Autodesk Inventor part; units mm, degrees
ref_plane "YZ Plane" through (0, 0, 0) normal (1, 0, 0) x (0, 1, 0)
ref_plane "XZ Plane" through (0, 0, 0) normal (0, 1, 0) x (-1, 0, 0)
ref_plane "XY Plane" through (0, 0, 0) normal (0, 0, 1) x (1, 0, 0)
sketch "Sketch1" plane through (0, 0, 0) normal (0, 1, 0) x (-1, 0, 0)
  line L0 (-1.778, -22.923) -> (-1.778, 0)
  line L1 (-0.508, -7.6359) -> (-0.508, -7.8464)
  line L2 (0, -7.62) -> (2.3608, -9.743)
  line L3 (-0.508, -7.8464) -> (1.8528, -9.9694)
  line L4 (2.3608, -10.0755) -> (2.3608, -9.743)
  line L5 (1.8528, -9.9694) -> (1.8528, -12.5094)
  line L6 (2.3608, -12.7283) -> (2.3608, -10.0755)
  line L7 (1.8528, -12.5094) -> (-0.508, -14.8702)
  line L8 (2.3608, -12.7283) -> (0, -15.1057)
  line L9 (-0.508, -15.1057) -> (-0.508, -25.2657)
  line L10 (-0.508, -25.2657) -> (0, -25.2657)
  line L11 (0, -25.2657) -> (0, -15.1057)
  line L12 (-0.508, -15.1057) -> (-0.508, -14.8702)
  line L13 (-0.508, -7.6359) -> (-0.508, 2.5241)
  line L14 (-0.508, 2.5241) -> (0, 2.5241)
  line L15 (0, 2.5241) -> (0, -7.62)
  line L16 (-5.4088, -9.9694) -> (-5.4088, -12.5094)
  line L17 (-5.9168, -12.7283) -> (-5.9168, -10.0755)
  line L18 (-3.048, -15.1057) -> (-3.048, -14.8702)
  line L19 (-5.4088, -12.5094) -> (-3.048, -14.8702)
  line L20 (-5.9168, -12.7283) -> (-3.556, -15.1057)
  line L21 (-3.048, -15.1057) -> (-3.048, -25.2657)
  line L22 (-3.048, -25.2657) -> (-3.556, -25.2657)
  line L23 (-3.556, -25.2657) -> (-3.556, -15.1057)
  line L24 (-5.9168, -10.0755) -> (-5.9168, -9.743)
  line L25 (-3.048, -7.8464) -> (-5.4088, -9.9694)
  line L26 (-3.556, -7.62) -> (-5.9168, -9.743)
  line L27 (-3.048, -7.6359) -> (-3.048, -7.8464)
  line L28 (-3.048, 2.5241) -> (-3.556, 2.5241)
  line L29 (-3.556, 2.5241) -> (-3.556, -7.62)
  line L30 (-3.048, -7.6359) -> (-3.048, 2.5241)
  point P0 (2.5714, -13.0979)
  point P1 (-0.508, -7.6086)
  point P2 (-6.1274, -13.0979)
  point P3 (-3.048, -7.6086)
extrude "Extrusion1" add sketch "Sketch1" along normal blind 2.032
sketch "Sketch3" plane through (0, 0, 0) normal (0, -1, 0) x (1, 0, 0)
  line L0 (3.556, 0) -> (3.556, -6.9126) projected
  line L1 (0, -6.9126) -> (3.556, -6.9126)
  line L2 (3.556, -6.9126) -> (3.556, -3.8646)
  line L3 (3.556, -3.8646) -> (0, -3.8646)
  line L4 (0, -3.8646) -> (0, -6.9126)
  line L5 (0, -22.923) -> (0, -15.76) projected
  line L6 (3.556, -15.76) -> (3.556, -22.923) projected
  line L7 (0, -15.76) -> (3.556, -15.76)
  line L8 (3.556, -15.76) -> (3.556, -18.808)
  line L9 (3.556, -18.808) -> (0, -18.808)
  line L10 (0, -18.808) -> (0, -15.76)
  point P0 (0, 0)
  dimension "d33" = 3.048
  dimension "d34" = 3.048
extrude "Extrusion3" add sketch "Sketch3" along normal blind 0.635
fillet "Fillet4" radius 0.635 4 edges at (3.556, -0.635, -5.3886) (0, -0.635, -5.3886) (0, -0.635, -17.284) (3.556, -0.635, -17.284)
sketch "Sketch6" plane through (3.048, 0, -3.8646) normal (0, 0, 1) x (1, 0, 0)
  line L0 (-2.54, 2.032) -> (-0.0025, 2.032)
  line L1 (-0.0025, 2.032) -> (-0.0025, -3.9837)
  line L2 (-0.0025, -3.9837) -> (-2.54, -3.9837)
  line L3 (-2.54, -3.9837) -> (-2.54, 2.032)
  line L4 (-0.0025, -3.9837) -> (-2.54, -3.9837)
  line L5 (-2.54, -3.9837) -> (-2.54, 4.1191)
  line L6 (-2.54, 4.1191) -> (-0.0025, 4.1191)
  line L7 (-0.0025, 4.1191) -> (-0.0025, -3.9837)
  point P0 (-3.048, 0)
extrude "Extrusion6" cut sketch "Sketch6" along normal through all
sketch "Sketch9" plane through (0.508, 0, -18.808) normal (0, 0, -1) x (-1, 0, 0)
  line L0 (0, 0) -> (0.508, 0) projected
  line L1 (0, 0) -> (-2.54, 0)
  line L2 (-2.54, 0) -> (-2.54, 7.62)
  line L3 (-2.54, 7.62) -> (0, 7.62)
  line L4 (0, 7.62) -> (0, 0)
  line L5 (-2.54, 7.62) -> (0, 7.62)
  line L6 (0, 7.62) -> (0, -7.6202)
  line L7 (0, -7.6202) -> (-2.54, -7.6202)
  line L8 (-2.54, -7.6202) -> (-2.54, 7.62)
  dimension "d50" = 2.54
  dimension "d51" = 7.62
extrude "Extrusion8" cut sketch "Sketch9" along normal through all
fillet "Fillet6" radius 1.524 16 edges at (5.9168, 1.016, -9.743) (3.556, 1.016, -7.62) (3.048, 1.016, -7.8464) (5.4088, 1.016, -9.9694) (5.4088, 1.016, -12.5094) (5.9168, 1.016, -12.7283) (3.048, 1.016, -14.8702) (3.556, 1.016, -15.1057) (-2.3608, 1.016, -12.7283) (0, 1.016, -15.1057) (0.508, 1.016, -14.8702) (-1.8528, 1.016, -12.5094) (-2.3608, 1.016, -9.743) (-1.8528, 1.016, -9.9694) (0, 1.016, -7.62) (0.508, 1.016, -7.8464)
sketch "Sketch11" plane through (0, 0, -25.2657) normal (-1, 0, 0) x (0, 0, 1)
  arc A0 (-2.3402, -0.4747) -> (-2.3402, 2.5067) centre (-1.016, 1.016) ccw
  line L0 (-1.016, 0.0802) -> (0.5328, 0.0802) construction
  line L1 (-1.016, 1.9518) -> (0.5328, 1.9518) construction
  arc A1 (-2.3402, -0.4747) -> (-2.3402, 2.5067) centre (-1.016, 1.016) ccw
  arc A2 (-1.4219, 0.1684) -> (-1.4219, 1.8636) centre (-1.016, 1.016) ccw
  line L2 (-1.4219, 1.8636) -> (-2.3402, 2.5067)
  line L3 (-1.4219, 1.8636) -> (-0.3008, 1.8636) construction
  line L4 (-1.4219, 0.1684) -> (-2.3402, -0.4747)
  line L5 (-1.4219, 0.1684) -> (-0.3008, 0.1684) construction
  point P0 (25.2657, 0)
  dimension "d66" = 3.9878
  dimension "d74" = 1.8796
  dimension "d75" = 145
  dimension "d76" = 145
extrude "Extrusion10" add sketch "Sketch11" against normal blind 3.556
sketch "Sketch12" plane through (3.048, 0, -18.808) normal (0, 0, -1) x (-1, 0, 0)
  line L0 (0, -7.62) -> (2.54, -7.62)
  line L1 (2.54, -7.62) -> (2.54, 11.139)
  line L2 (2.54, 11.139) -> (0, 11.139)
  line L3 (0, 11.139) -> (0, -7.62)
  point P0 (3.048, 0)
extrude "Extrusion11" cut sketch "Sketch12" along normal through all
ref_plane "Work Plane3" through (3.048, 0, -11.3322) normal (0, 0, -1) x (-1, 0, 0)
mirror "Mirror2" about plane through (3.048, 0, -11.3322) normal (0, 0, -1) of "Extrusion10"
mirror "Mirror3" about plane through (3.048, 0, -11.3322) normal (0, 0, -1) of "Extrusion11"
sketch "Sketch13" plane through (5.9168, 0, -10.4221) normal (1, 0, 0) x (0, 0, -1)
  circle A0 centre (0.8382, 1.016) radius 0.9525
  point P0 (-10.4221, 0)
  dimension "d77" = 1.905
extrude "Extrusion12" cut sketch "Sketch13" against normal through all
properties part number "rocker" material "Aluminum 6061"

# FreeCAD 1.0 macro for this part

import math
import FreeCAD as App
import Part
import Sketcher
from FreeCAD import Vector
Q = App.Units.Quantity


def edges_at(feature, points):
    """Names of the edges that pass closest to the given points."""
    edges = feature.Shape.Edges
    near = lambda p: min(range(len(edges)), key=lambda i: edges[i].distToShape(Part.Vertex(*p))[0])
    return sorted({f"Edge{near(p) + 1}" for p in points})


def add_polygon(sketch, points):
    """Adds a closed chain of lines whose ends are joined by coincident constraints."""
    first, n = sketch.GeometryCount, len(points)
    for a, b in zip(points, points[1:] + points[:1]):
        sketch.addGeometry(Part.LineSegment(App.Vector(*a, 0), App.Vector(*b, 0)), False)
    for i in range(n):
        sketch.addConstraint(Sketcher.Constraint("Coincident", first + i, 2, first + (i + 1) % n, 1))

doc = App.newDocument("Part")
body = doc.addObject("PartDesign::Body", "Body")
body.AllowCompound = True

# Sketch on XZ plane
sketch1 = body.newObject("Sketcher::SketchObject", "Sketch")
sketch1.AttachmentSupport = (doc.getObject("XZ_Plane"), [""])
sketch1.MapMode = "FlatFace"
add_polygon(sketch1, [(0.508, 2.5241), (0.508, -7.8464), (-1.8528, -9.9694), (-1.8528, -12.5094), (0.508, -14.8702), (0.508, -25.2657), (0, -25.2657), (0, -15.1057), (-2.3608, -12.7283), (-2.3608, -9.743), (0, -7.62), (0, 2.5241)])  # lines 0-11
add_polygon(sketch1, [(5.4088, -12.5094), (5.4088, -9.9694), (3.048, -7.8464), (3.048, 2.5241), (3.556, 2.5241), (3.556, -7.62), (5.9168, -9.743), (5.9168, -12.7283), (3.556, -15.1057), (3.556, -25.2657), (3.048, -25.2657), (3.048, -14.8702)])  # lines 12-23
sketch1.addConstraint(Sketcher.Constraint("Vertical", 0))
sketch1.addConstraint(Sketcher.Constraint("Vertical", 2))
sketch1.addConstraint(Sketcher.Constraint("Vertical", 4))
sketch1.addConstraint(Sketcher.Constraint("Horizontal", 5))
sketch1.addConstraint(Sketcher.Constraint("Vertical", 6))
sketch1.addConstraint(Sketcher.Constraint("Vertical", 8))
sketch1.addConstraint(Sketcher.Constraint("Vertical", 10))
sketch1.addConstraint(Sketcher.Constraint("Horizontal", 11))
sketch1.addConstraint(Sketcher.Constraint("Vertical", 12))
sketch1.addConstraint(Sketcher.Constraint("Vertical", 14))
sketch1.addConstraint(Sketcher.Constraint("Horizontal", 15))
sketch1.addConstraint(Sketcher.Constraint("Vertical", 16))
sketch1.addConstraint(Sketcher.Constraint("Vertical", 18))
sketch1.addConstraint(Sketcher.Constraint("Vertical", 20))
sketch1.addConstraint(Sketcher.Constraint("Horizontal", 21))
sketch1.addConstraint(Sketcher.Constraint("Vertical", 22))
sketch1.addConstraint(Sketcher.Constraint("PointOnObject", 5, 2, -2))
sketch1.addConstraint(Sketcher.Constraint("PointOnObject", 9, 2, -2))
sketch1.addConstraint(Sketcher.Constraint("Parallel", 1, 9))
sketch1.addConstraint(Sketcher.Constraint("Parallel", 13, 17))
sketch1.addConstraint(Sketcher.Constraint("Perpendicular", 3, 23))
sketch1.addConstraint(Sketcher.Constraint("Horizontal", 1, 2, 12, 2))
sketch1.addConstraint(Sketcher.Constraint("Horizontal", 0, 2, 13, 2))
sketch1.addConstraint(Sketcher.Constraint("Horizontal", 11, 2, 14, 2))
sketch1.addConstraint(Sketcher.Constraint("Horizontal", 9, 2, 16, 2))
sketch1.addConstraint(Sketcher.Constraint("Horizontal", 8, 2, 17, 2))
sketch1.addConstraint(Sketcher.Constraint("Horizontal", 7, 2, 18, 2))
sketch1.addConstraint(Sketcher.Constraint("Horizontal", 6, 2, 19, 2))
sketch1.addConstraint(Sketcher.Constraint("Horizontal", 5, 2, 20, 2))
sketch1.addConstraint(Sketcher.Constraint("Horizontal", 3, 2, 22, 2))
sketch1.addConstraint(Sketcher.Constraint("Horizontal", 2, 2, 23, 2))
sketch1.addConstraint(Sketcher.Constraint("Vertical", 0, 2, 3, 2))
sketch1.addConstraint(Sketcher.Constraint("Vertical", 16, 2, 19, 2))
sketch1.addConstraint(Sketcher.Constraint("Vertical", 14, 2, 21, 2))
sketch1.addConstraint(Sketcher.Constraint("Equal", 11, 15))
sketch1.addConstraint(Sketcher.Constraint("Equal", 1, 9))
sketch1.addConstraint(Sketcher.Constraint("Equal", 9, 13))
sketch1.addConstraint(Sketcher.Constraint("DistanceY", 2, 2, 2, 1, Q("0.1 in")))
sketch1.addConstraint(Sketcher.Constraint("DistanceY", 6, 1, 6, 2, Q("0.4 in")))
sketch1.addConstraint(Sketcher.Constraint("DistanceX", 5, 2, 5, 1, Q("0.02 in")))
sketch1.addConstraint(Sketcher.Constraint("DistanceY", 9, 2, -1, 1, Q("0.3 in")))
sketch1.addConstraint(Sketcher.Constraint("Angle", 7, Q("134.7993 deg")))
sketch1.addConstraint(Sketcher.Constraint("DistanceX", 0, 2, 13, 2, Q("0.1 in")))
sketch1.addConstraint(Sketcher.Constraint("Distance", 1, Q("0.125 in")))
sketch1.addConstraint(Sketcher.Constraint("Distance", 7, Q("0.1319 in")))
sketch1.addConstraint(Sketcher.Constraint("DistanceY", 0, 2, 0, 1, Q("10.3705 mm")))
sketch1.addConstraint(Sketcher.Constraint("DistanceY", 4, 2, 4, 1, Q("10.3955 mm")))
sketch1.addConstraint(Sketcher.Constraint("DistanceY", 8, 1, 8, 2, Q("2.9853 mm")))
pad1 = body.newObject("PartDesign::Pad", "Pad")
pad1.Profile = sketch1
pad1.Length = Q("0.08 in")
pad1.Reversed = True

# Sketch on XZ plane
sketch2 = body.newObject("Sketcher::SketchObject", "Sketch001")
sketch2.AttachmentSupport = (doc.getObject("XZ_Plane"), [""])
sketch2.MapMode = "FlatFace"
add_polygon(sketch2, [(3.556, -6.9126), (3.556, -3.8646), (0, -3.8646), (0, -6.9126)])  # lines 0-3
add_polygon(sketch2, [(0, -15.76), (0, -18.808), (3.556, -18.808), (3.556, -15.76)])  # lines 4-7
sketch2.addConstraint(Sketcher.Constraint("Vertical", 0))
sketch2.addConstraint(Sketcher.Constraint("Horizontal", 1))
sketch2.addConstraint(Sketcher.Constraint("Vertical", 2))
sketch2.addConstraint(Sketcher.Constraint("Horizontal", 3))
sketch2.addConstraint(Sketcher.Constraint("Vertical", 4))
sketch2.addConstraint(Sketcher.Constraint("Horizontal", 5))
sketch2.addConstraint(Sketcher.Constraint("Vertical", 6))
sketch2.addConstraint(Sketcher.Constraint("Horizontal", 7))
sketch2.addConstraint(Sketcher.Constraint("PointOnObject", 1, 2, -2))
sketch2.addConstraint(Sketcher.Constraint("PointOnObject", 4, 2, -2))
sketch2.addConstraint(Sketcher.Constraint("Vertical", 3, 2, 5, 2))
sketch2.addConstraint(Sketcher.Constraint("Equal", 2, 4))
sketch2.addConstraint(Sketcher.Constraint("DistanceY", 0, 1, 0, 2, Q("0.12 in")))
sketch2.addConstraint(Sketcher.Constraint("DistanceX", 1, 2, 1, 1, Q("0.14 in")))
sketch2.addConstraint(Sketcher.Constraint("DistanceY", 0, 2, -1, 1, Q("3.8646 mm")))
sketch2.addConstraint(Sketcher.Constraint("DistanceY", 4, 2, -1, 1, Q("18.808 mm")))
pad2 = body.newObject("PartDesign::Pad", "Pad001")
pad2.Profile = sketch2
pad2.Length = Q("0.025 in")
doc.recompute()

fillet = body.newObject("PartDesign::Fillet", "Fillet")
fillet.Base = (pad2, edges_at(pad2, [
    (3.556, -0.635, -5.389),
    (0, -0.635, -5.389),
    (0, -0.635, -17.284),
    (3.556, -0.635, -17.284),
]))
fillet.Radius = Q("0.025 in")

# Sketch on XY plane
sketch3 = body.newObject("Sketcher::SketchObject", "Sketch002")
sketch3.AttachmentSupport = (doc.getObject("XY_Plane"), [""])
sketch3.MapMode = "FlatFace"
sketch3.AttachmentOffset = App.Placement(Vector(0, 0, -3.8646), App.Rotation())
add_polygon(sketch3, [(0.508, 4.1191), (0.508, -3.9837), (3.0455, -3.9837), (3.0455, 4.1191)])  # lines 0-3
sketch3.addConstraint(Sketcher.Constraint("Vertical", 0))
sketch3.addConstraint(Sketcher.Constraint("Horizontal", 1))
sketch3.addConstraint(Sketcher.Constraint("Vertical", 2))
sketch3.addConstraint(Sketcher.Constraint("Horizontal", 3))
sketch3.addConstraint(Sketcher.Constraint("DistanceY", 0, 2, 0, 1, Q("0.319 in")))
sketch3.addConstraint(Sketcher.Constraint("DistanceX", -1, 1, 0, 2, Q("0.02 in")))
sketch3.addConstraint(Sketcher.Constraint("DistanceX", 1, 1, 1, 2, Q("0.0999 in")))
sketch3.addConstraint(Sketcher.Constraint("DistanceY", 0, 2, -1, 1, Q("3.9837 mm")))
pocket1 = body.newObject("PartDesign::Pocket", "Pocket")
pocket1.Profile = sketch3
pocket1.Type = "ThroughAll"
pocket1.Reversed = True

# Sketch on XY plane
sketch4 = body.newObject("Sketcher::SketchObject", "Sketch003")
sketch4.AttachmentSupport = (doc.getObject("XY_Plane"), [""])
sketch4.MapMode = "FlatFace"
sketch4.AttachmentOffset = App.Placement(Vector(0, 0, -18.808), App.Rotation())
add_polygon(sketch4, [(0.508, -7.6202), (0.508, 7.62), (3.048, 7.62), (3.048, -7.6202)])  # lines 0-3
sketch4.addConstraint(Sketcher.Constraint("Vertical", 0))
sketch4.addConstraint(Sketcher.Constraint("Horizontal", 1))
sketch4.addConstraint(Sketcher.Constraint("Vertical", 2))
sketch4.addConstraint(Sketcher.Constraint("Horizontal", 3))
sketch4.addConstraint(Sketcher.Constraint("DistanceX", 1, 1, 1, 2, Q("0.1 in")))
sketch4.addConstraint(Sketcher.Constraint("DistanceY", -1, 1, 0, 2, Q("0.3 in")))
sketch4.addConstraint(Sketcher.Constraint("DistanceY", 2, 2, -1, 1, Q("0.3 in")))
sketch4.addConstraint(Sketcher.Constraint("DistanceX", -1, 1, 0, 2, Q("0.02 in")))
pocket2 = body.newObject("PartDesign::Pocket", "Pocket001")
pocket2.Profile = sketch4
pocket2.Type = "ThroughAll"
doc.recompute()

fillet2 = body.newObject("PartDesign::Fillet", "Fillet001")
fillet2.Base = (pocket2, edges_at(pocket2, [
    (5.917, 1.016, -9.743),
    (3.556, 1.016, -7.62),
    (3.048, 1.016, -7.846),
    (5.409, 1.016, -9.969),
    (5.409, 1.016, -12.509),
    (5.917, 1.016, -12.728),
    (3.048, 1.016, -14.87),
    (3.556, 1.016, -15.106),
    (-2.361, 1.016, -12.728),
    (0, 1.016, -15.106),
    (0.508, 1.016, -14.87),
    (-1.853, 1.016, -12.509),
    (-2.361, 1.016, -9.743),
    (-1.853, 1.016, -9.969),
    (0, 1.016, -7.62),
    (0.508, 1.016, -7.846),
]))
fillet2.Radius = Q("0.06 in")

# Sketch on YZ plane
sketch5 = body.newObject("Sketcher::SketchObject", "Sketch004")
sketch5.AttachmentSupport = (doc.getObject("YZ_Plane"), [""])
sketch5.MapMode = "FlatFace"
sketch5.addGeometry(Part.LineSegment(Vector(0.1684, -26.6876, 0), Vector(-0.4747, -27.6059, 0)), False)
sketch5.addGeometry(Part.ArcOfCircle(Part.Circle(Vector(1.016, -26.2817, 0), Vector(0, 0, 1), 1.993914), math.radians(-41.614926), math.radians(221.614926)), False)
sketch5.addGeometry(Part.LineSegment(Vector(2.5067, -27.6059, 0), Vector(1.8636, -26.6876, 0)), False)
sketch5.addGeometry(Part.ArcOfCircle(Part.Circle(Vector(1.016, -26.2817, 0), Vector(0, 0, 1), 0.939777), math.radians(-25.5889), math.radians(205.5889)), False)
sketch5.addConstraint(Sketcher.Constraint("Coincident", 0, 2, 1, 2))
sketch5.addConstraint(Sketcher.Constraint("Coincident", 1, 1, 2, 1))
sketch5.addConstraint(Sketcher.Constraint("Coincident", 2, 2, 3, 1))
sketch5.addConstraint(Sketcher.Constraint("Coincident", 3, 2, 0, 1))
sketch5.addConstraint(Sketcher.Constraint("Coincident", 3, 3, 1, 3))
sketch5.addConstraint(Sketcher.Constraint("Horizontal", 0, 2, 1, 1))
sketch5.addConstraint(Sketcher.Constraint("Horizontal", 2, 2, 3, 2))
sketch5.addConstraint(Sketcher.Constraint("Radius", 3, Q("0.037 in")))
sketch5.addConstraint(Sketcher.Constraint("Radius", 1, Q("0.0785 in")))
sketch5.addConstraint(Sketcher.Constraint("DistanceX", -1, 1, 1, 3, Q("0.04 in")))
sketch5.addConstraint(Sketcher.Constraint("DistanceX", 0, 2, -1, 1, Q("0.0187 in")))
sketch5.addConstraint(Sketcher.Constraint("DistanceY", 2, 2, -1, 1, Q("1.0507 in")))
sketch5.addConstraint(Sketcher.Constraint("Distance", 0, Q("1.121 mm")))
pad3 = body.newObject("PartDesign::Pad", "Pad002")
pad3.Profile = sketch5
pad3.Length = Q("0.14 in")

# Sketch on XY plane
sketch6 = body.newObject("Sketcher::SketchObject", "Sketch005")
sketch6.AttachmentSupport = (doc.getObject("XY_Plane"), [""])
sketch6.MapMode = "FlatFace"
sketch6.AttachmentOffset = App.Placement(Vector(0, 0, -18.808), App.Rotation())
add_polygon(sketch6, [(3.048, 11.139), (3.048, -7.62), (0.508, -7.62), (0.508, 11.139)])  # lines 0-3
sketch6.addConstraint(Sketcher.Constraint("Vertical", 0))
sketch6.addConstraint(Sketcher.Constraint("Horizontal", 1))
sketch6.addConstraint(Sketcher.Constraint("Vertical", 2))
sketch6.addConstraint(Sketcher.Constraint("Horizontal", 3))
sketch6.addConstraint(Sketcher.Constraint("DistanceX", 1, 2, 1, 1, Q("0.1 in")))
sketch6.addConstraint(Sketcher.Constraint("DistanceY", 0, 2, -1, 1, Q("0.3 in")))
sketch6.addConstraint(Sketcher.Constraint("DistanceX", -1, 1, 0, 2, Q("0.12 in")))
sketch6.addConstraint(Sketcher.Constraint("DistanceY", 0, 2, 0, 1, Q("18.759 mm")))
pocket3 = body.newObject("PartDesign::Pocket", "Pocket002")
pocket3.Profile = sketch6
pocket3.Type = "ThroughAll"
doc.recompute()

datumplane = body.newObject("PartDesign::Plane", "DatumPlane")
datumplane.AttachmentSupport = (doc.getObject("XY_Plane"), [""])
datumplane.MapMode = "FlatFace"
datumplane.AttachmentOffset = App.Placement(Vector(0, 0, -11.3322), App.Rotation())
mirrored = body.newObject("PartDesign::Mirrored", "Mirrored")
mirrored.Originals = [pad3]
mirrored.MirrorPlane = (datumplane, [""])
body.Tip = mirrored
doc.recompute()

datumplane2 = body.newObject("PartDesign::Plane", "DatumPlane001")
datumplane2.AttachmentSupport = (doc.getObject("XY_Plane"), [""])
datumplane2.MapMode = "FlatFace"
datumplane2.AttachmentOffset = App.Placement(Vector(0, 0, -11.3322), App.Rotation())
mirrored2 = body.newObject("PartDesign::Mirrored", "Mirrored001")
mirrored2.Originals = [pocket3]
mirrored2.MirrorPlane = (datumplane2, [""])
body.Tip = mirrored2

# Sketch on YZ plane
sketch7 = body.newObject("Sketcher::SketchObject", "Sketch006")
sketch7.AttachmentSupport = (doc.getObject("YZ_Plane"), [""])
sketch7.MapMode = "FlatFace"
sketch7.AttachmentOffset = App.Placement(Vector(0, 0, 5.9168), App.Rotation())
sketch7.addGeometry(Part.Circle(Vector(1.016, -11.2603, 0), Vector(0, 0, 1), 0.9525), False)
sketch7.addConstraint(Sketcher.Constraint("Diameter", 0, Q("0.075 in")))
sketch7.addConstraint(Sketcher.Constraint("DistanceX", -1, 1, 0, 3, Q("0.04 in")))
sketch7.addConstraint(Sketcher.Constraint("DistanceY", 0, 3, -1, 1, Q("11.2603 mm")))
pocket4 = body.newObject("PartDesign::Pocket", "Pocket003")
pocket4.Profile = sketch7
pocket4.Type = "ThroughAll"

doc.recompute()
